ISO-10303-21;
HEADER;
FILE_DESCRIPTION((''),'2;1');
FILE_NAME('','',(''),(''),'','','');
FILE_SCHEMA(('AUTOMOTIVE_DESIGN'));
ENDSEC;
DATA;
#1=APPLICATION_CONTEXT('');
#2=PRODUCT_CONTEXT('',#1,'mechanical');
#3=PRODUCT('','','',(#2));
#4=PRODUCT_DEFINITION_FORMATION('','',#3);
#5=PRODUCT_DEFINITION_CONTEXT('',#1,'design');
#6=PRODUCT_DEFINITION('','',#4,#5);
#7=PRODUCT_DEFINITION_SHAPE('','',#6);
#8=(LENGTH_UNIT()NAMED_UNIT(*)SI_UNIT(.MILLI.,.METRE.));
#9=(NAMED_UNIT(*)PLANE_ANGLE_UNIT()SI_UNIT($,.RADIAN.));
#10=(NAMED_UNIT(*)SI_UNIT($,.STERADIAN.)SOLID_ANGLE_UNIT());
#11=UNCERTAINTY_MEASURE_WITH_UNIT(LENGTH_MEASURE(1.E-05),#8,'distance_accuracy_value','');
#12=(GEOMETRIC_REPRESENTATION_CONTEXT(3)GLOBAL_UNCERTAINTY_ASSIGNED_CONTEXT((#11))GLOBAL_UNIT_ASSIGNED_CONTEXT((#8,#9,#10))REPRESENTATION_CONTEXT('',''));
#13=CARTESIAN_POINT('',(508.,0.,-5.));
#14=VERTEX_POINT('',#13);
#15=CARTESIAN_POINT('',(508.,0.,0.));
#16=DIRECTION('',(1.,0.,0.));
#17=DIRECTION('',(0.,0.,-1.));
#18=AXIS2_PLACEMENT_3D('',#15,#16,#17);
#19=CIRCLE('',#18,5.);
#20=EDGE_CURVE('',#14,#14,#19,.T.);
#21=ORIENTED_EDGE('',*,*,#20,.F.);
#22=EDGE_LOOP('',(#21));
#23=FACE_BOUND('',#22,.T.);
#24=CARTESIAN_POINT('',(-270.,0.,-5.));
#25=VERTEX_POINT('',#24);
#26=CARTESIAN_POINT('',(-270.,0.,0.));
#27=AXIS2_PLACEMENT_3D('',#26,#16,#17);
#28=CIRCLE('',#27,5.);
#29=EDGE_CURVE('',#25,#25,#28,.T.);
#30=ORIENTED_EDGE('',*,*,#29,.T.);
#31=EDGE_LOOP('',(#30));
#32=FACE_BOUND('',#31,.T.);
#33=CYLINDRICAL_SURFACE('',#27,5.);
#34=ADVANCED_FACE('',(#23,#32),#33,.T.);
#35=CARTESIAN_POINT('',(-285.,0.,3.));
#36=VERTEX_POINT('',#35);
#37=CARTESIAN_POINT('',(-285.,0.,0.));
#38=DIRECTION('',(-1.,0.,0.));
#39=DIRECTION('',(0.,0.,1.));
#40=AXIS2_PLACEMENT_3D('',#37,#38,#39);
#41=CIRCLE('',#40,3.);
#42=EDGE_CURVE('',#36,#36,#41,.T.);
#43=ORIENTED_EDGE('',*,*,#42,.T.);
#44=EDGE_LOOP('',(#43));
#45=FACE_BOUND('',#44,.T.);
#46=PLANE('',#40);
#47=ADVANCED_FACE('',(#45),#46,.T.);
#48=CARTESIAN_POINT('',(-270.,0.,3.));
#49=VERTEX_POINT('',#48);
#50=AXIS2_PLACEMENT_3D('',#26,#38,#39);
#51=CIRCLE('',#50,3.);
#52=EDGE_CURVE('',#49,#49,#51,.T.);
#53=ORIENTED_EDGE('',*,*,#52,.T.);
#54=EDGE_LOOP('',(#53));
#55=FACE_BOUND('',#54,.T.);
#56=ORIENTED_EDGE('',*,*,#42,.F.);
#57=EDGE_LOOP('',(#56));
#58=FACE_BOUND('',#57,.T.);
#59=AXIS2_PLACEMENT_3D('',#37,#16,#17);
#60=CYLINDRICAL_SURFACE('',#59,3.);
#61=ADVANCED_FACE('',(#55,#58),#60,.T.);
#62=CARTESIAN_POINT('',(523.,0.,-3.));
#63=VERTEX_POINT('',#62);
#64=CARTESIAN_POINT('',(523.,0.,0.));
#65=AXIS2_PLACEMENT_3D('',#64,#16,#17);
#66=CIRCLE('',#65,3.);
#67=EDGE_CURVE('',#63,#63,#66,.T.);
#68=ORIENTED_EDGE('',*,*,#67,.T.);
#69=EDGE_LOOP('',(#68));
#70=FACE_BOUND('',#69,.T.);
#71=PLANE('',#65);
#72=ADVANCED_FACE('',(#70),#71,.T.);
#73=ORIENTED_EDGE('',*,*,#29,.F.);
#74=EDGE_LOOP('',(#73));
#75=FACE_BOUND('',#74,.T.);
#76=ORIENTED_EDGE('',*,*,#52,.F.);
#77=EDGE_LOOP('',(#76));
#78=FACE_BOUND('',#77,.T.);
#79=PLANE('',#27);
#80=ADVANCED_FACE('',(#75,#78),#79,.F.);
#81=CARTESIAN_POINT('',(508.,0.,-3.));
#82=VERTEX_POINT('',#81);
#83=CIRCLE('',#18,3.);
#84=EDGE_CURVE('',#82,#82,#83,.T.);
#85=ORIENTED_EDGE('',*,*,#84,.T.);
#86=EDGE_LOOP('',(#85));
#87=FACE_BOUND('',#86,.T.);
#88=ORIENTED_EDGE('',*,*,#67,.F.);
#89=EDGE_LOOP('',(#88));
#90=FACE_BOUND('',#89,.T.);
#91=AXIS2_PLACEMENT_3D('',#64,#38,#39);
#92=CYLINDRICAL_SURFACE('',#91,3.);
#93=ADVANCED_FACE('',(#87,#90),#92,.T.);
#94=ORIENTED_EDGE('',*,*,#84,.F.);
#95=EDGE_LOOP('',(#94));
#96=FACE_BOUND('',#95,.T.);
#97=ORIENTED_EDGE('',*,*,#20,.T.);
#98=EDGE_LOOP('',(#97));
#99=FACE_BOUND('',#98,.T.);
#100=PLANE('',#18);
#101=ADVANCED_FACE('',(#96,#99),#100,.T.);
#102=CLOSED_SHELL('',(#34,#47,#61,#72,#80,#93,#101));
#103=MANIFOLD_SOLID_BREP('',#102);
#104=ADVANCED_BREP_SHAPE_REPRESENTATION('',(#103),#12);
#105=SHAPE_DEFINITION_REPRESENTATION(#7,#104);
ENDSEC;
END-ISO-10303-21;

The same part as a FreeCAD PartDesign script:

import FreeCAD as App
import Part
import Sketcher

V = App.Vector
Q = App.Units.Quantity

doc = App.newDocument("Part")
body = doc.addObject("PartDesign::Body", "Body")

sketch1 = body.newObject("Sketcher::SketchObject", "Sketch")
sketch1.AttachmentSupport = (doc.getObject("YZ_Plane"), [""])
sketch1.MapMode = "FlatFace"
sketch1.addGeometry(Part.Circle(V(0, 0, 0), V(0, 0, 1), 5), False)
sketch1.addConstraint([
    Sketcher.Constraint("Coincident", 0, 3, -1, 1),
    Sketcher.Constraint("Diameter", 0, Q("10 mm")),
])
pad1 = body.newObject("PartDesign::Pad", "Pad")
pad1.Profile = sketch1
pad1.Type = "TwoLengths"
pad1.Length = 508
pad1.Length2 = 270

sketch2 = body.newObject("Sketcher::SketchObject", "Sketch001")
sketch2.AttachmentSupport = (doc.getObject("YZ_Plane"), [""])
sketch2.MapMode = "FlatFace"
sketch2.AttachmentOffset = App.Placement(V(0, 0, -270), App.Rotation())
sketch2.addGeometry(Part.Circle(V(0, 0, 0), V(0, 0, 1), 3), False)
sketch2.addConstraint([
    Sketcher.Constraint("Coincident", 0, 3, -1, 1),
    Sketcher.Constraint("Diameter", 0, Q("6 mm")),
])
pad2 = body.newObject("PartDesign::Pad", "Pad001")
pad2.Profile = sketch2
pad2.Length = 15
pad2.Reversed = True

sketch3 = body.newObject("Sketcher::SketchObject", "Sketch002")
sketch3.AttachmentSupport = (doc.getObject("YZ_Plane"), [""])
sketch3.MapMode = "FlatFace"
sketch3.AttachmentOffset = App.Placement(V(0, 0, 523), App.Rotation())
sketch3.addGeometry(Part.Circle(V(0, 0, 0), V(0, 0, 1), 3), False)
sketch3.addConstraint([
    Sketcher.Constraint("Coincident", 0, 3, -1, 1),
    Sketcher.Constraint("Diameter", 0, Q("6 mm")),
])
pad3 = body.newObject("PartDesign::Pad", "Pad002")
pad3.Profile = sketch3
pad3.Length = 15
pad3.Reversed = True

doc.recompute()
